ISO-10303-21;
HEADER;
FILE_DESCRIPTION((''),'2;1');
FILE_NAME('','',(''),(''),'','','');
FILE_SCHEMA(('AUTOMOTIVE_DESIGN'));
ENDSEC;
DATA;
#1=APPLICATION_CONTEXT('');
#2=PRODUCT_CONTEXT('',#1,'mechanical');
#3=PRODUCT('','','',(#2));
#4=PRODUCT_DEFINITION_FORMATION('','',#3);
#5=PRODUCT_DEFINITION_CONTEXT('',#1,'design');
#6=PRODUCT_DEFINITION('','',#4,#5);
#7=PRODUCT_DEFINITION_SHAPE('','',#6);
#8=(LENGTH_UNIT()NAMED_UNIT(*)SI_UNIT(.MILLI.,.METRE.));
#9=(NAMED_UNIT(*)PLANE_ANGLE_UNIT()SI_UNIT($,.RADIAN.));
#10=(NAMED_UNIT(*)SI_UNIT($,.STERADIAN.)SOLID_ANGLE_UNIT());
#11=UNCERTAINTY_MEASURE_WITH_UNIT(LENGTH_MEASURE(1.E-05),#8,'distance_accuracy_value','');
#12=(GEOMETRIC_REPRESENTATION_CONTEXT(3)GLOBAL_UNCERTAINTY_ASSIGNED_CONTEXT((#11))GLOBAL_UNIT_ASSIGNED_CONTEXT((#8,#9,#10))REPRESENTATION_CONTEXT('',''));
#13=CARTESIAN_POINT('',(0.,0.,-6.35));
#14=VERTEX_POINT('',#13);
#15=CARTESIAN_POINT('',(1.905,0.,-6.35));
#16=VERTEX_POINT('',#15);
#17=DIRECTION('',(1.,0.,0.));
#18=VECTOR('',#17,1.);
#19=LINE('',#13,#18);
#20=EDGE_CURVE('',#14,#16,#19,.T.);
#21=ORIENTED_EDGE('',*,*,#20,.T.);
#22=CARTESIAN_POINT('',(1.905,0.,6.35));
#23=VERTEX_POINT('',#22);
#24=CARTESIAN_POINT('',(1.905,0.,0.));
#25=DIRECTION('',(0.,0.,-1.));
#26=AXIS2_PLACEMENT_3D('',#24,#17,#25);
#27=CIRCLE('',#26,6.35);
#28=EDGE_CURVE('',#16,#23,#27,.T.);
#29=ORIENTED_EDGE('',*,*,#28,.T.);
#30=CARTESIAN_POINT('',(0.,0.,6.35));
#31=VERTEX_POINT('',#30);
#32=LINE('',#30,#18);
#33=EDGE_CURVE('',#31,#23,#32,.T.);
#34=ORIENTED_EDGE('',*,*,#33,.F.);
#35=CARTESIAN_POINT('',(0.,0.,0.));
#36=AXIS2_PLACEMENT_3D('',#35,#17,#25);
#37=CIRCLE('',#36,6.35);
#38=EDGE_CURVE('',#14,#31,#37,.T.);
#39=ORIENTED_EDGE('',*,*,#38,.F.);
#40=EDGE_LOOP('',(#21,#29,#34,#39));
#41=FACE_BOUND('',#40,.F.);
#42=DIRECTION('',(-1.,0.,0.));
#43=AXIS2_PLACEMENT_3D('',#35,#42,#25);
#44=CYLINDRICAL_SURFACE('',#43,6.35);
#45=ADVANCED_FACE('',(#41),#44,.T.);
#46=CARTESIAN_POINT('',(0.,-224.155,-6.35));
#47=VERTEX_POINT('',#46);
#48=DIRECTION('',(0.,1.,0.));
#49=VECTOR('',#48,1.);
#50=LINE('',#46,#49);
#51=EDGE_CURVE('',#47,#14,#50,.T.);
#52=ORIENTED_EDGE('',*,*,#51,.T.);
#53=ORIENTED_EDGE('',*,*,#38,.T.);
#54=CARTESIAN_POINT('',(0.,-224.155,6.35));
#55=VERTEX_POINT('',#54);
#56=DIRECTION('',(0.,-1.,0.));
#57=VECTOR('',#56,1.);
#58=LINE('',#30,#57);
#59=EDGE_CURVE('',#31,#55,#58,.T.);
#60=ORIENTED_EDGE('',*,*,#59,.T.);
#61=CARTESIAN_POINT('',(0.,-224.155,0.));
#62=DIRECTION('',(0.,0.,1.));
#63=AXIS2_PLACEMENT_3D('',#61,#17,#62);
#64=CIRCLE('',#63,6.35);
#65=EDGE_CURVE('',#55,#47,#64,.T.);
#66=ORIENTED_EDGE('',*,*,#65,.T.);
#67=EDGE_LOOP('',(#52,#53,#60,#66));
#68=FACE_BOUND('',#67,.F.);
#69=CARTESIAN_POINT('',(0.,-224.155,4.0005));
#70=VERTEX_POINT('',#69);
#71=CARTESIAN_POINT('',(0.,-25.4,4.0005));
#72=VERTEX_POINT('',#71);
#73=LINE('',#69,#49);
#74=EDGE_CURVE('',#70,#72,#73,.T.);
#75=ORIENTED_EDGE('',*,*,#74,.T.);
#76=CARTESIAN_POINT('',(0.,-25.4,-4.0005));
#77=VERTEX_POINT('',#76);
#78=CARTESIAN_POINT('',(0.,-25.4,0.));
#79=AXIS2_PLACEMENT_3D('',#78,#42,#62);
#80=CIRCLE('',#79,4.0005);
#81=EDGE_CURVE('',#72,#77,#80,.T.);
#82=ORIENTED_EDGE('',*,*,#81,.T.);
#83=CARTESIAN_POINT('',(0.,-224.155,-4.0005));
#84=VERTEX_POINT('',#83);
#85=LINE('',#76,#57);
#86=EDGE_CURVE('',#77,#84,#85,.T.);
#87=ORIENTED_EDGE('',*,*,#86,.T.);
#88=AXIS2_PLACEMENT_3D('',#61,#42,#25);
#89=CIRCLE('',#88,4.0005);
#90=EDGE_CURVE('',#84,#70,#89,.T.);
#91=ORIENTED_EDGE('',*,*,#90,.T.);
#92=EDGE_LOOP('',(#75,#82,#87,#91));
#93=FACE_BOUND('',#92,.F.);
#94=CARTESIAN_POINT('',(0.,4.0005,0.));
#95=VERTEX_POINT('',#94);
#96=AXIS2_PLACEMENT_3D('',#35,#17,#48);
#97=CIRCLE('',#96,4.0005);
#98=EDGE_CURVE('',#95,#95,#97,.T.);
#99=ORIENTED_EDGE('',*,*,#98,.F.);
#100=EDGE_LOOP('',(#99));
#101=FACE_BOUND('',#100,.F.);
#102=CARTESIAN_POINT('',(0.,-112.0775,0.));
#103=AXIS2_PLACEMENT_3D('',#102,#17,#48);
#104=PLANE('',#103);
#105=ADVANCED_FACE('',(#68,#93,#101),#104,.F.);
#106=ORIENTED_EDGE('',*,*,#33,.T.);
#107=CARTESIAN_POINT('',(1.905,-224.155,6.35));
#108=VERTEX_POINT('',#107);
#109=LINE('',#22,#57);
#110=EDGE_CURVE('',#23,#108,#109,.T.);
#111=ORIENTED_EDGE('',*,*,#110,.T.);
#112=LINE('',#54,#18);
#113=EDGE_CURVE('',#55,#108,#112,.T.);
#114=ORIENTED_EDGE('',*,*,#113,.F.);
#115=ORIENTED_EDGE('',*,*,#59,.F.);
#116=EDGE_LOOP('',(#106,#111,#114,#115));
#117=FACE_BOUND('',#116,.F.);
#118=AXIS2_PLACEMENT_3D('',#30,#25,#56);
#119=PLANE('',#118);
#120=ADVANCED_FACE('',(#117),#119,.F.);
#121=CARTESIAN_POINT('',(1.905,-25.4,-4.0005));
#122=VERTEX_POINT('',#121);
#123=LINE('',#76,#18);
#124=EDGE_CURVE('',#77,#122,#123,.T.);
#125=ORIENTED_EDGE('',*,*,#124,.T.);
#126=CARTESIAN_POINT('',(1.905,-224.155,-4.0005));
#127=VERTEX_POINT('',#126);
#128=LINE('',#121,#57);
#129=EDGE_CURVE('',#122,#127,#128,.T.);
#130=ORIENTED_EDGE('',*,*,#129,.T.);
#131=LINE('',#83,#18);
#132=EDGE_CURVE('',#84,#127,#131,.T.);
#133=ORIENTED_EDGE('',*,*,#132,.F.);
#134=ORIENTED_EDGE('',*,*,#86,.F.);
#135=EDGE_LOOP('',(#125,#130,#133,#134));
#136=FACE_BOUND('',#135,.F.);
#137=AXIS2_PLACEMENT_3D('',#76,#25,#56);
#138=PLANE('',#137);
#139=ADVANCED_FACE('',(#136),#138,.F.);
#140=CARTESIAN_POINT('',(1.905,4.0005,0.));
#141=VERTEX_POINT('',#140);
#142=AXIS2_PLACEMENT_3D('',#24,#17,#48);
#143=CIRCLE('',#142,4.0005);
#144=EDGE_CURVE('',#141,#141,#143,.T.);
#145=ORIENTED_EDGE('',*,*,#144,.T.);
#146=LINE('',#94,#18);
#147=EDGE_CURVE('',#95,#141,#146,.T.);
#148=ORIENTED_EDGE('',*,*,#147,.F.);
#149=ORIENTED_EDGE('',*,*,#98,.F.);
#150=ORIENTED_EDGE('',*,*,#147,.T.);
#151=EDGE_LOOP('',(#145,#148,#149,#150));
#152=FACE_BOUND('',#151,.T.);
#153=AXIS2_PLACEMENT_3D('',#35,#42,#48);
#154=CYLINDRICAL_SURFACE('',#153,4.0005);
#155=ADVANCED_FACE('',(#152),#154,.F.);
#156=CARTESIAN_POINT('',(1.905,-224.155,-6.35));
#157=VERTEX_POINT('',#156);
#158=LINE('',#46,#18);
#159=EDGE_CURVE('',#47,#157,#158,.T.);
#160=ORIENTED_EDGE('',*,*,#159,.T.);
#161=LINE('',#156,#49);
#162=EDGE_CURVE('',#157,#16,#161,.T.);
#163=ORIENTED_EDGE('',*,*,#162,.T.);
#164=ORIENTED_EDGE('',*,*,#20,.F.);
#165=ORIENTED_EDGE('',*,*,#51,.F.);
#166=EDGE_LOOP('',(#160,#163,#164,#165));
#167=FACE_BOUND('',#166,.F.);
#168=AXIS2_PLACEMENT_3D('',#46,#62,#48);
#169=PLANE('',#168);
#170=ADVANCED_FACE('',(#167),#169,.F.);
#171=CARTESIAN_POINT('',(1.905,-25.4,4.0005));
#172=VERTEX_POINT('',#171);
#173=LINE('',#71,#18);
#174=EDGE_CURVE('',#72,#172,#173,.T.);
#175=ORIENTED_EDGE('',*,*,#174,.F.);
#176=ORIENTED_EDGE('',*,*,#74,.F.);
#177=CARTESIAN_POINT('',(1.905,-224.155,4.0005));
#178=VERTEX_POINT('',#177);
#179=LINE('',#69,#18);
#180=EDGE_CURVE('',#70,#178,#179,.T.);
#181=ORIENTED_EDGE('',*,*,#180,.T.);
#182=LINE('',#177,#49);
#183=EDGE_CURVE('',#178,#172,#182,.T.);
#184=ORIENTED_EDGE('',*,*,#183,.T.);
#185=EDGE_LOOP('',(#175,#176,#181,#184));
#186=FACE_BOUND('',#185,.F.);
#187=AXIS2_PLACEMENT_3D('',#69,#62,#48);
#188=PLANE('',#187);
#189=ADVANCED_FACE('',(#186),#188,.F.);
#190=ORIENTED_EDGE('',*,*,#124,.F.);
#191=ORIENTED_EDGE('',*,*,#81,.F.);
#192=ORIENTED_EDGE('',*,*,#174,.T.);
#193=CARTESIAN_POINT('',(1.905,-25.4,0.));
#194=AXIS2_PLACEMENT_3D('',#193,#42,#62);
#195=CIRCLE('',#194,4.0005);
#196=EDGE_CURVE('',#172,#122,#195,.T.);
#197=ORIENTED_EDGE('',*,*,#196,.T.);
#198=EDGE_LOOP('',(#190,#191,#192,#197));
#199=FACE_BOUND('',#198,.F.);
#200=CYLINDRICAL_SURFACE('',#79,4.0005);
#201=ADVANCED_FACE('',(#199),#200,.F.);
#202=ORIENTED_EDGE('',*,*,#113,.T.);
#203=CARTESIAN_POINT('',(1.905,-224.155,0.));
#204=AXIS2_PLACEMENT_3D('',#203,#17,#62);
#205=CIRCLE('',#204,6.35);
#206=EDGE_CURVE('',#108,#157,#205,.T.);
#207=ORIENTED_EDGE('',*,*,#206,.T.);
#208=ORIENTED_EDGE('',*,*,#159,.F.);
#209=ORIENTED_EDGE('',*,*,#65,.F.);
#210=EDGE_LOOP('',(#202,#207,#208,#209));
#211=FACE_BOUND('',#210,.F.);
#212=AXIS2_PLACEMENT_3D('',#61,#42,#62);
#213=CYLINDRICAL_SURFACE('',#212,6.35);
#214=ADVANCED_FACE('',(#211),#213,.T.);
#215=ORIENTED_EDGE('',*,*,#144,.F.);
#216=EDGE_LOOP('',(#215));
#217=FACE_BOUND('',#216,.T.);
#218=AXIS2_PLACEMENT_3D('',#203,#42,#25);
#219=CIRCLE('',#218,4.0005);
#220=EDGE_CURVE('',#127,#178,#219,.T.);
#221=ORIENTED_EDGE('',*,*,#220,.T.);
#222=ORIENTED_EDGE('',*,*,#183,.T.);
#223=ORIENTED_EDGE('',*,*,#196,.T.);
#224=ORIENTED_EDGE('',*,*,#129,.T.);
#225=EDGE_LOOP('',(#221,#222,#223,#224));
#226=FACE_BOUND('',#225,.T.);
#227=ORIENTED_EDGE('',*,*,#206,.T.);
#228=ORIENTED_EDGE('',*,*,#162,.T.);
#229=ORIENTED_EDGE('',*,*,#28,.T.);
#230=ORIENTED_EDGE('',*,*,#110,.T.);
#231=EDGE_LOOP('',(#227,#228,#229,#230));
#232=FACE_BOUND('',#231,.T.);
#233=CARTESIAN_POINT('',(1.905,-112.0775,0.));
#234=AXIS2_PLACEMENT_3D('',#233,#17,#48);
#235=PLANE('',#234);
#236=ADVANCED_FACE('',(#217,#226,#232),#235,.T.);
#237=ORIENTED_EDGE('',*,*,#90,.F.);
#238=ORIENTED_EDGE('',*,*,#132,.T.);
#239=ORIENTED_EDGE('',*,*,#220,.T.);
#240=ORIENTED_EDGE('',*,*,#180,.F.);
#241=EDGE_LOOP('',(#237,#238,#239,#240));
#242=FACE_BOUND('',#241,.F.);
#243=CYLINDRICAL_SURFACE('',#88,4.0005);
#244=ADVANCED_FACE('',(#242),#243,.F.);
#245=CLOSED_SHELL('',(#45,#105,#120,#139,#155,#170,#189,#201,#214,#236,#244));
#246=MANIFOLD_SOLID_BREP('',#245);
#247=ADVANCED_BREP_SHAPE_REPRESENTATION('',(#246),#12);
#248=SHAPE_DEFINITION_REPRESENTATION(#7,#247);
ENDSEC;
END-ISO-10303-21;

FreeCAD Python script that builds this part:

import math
import FreeCAD as App
import Part
import Sketcher
from FreeCAD import Vector
Q = App.Units.Quantity

doc = App.newDocument("Part")
body = doc.addObject("PartDesign::Body", "Body")

# Sketch on YZ plane
sketch1 = body.newObject("Sketcher::SketchObject", "Sketch")
sketch1.AttachmentSupport = (doc.getObject("YZ_Plane"), [""])
sketch1.MapMode = "FlatFace"
sketch1.addGeometry(Part.LineSegment(Vector(-224.2, -6.3, 0), Vector(0, -6.3, 0)), False)
sketch1.addGeometry(Part.ArcOfCircle(Part.Circle(Vector(0, 0, 0), Vector(0, 0, 1), 6.3), math.radians(-90), math.radians(90)), False)
sketch1.addGeometry(Part.LineSegment(Vector(0, 6.3, 0), Vector(-224.2, 6.3, 0)), False)
sketch1.addGeometry(Part.ArcOfCircle(Part.Circle(Vector(-224.2, 0, 0), Vector(0, 0, 1), 6.3), math.radians(90), math.radians(270)), False)
sketch1.addGeometry(Part.LineSegment(Vector(-25.4, -4, 0), Vector(-224.2, -4, 0)), False)
sketch1.addGeometry(Part.ArcOfCircle(Part.Circle(Vector(-224.2, 0, 0), Vector(0, 0, 1), 4), math.radians(90), math.radians(270)), False)
sketch1.addGeometry(Part.LineSegment(Vector(-224.2, 4, 0), Vector(-25.4, 4, 0)), False)
sketch1.addGeometry(Part.ArcOfCircle(Part.Circle(Vector(-25.4, 0, 0), Vector(0, 0, 1), 4), math.radians(-90), math.radians(90)), False)
sketch1.addGeometry(Part.Circle(Vector(0, 0, 0), Vector(0, 0, 1), 4), False)
sketch1.addConstraint(Sketcher.Constraint("Tangent", 0, 2, 1, 1))
sketch1.addConstraint(Sketcher.Constraint("Tangent", 1, 2, 2, 1))
sketch1.addConstraint(Sketcher.Constraint("Tangent", 2, 2, 3, 1))
sketch1.addConstraint(Sketcher.Constraint("Tangent", 3, 2, 0, 1))
sketch1.addConstraint(Sketcher.Constraint("Tangent", 4, 2, 5, 2))
sketch1.addConstraint(Sketcher.Constraint("Tangent", 5, 1, 6, 1))
sketch1.addConstraint(Sketcher.Constraint("Tangent", 6, 2, 7, 2))
sketch1.addConstraint(Sketcher.Constraint("Tangent", 7, 1, 4, 1))
sketch1.addConstraint(Sketcher.Constraint("Horizontal", 0))
sketch1.addConstraint(Sketcher.Constraint("Horizontal", 2))
sketch1.addConstraint(Sketcher.Constraint("Horizontal", 4))
sketch1.addConstraint(Sketcher.Constraint("Horizontal", 6))
sketch1.addConstraint(Sketcher.Constraint("Coincident", 1, 3, -1, 1))
sketch1.addConstraint(Sketcher.Constraint("Coincident", 8, 3, -1, 1))
sketch1.addConstraint(Sketcher.Constraint("Coincident", 5, 3, 3, 3))
sketch1.addConstraint(Sketcher.Constraint("Equal", 7, 8))
sketch1.addConstraint(Sketcher.Constraint("Radius", 1, Q("0.25 in")))
sketch1.addConstraint(Sketcher.Constraint("Diameter", 8, Q("0.315 in")))
sketch1.addConstraint(Sketcher.Constraint("DistanceX", 7, 3, -1, 1, Q("1 in")))
sketch1.addConstraint(Sketcher.Constraint("DistanceX", 0, 1, 0, 2, Q("8.825 in")))
pad1 = body.newObject("PartDesign::Pad", "Pad")
pad1.Profile = sketch1
pad1.Length = Q("0.075 in")

doc.recompute()
